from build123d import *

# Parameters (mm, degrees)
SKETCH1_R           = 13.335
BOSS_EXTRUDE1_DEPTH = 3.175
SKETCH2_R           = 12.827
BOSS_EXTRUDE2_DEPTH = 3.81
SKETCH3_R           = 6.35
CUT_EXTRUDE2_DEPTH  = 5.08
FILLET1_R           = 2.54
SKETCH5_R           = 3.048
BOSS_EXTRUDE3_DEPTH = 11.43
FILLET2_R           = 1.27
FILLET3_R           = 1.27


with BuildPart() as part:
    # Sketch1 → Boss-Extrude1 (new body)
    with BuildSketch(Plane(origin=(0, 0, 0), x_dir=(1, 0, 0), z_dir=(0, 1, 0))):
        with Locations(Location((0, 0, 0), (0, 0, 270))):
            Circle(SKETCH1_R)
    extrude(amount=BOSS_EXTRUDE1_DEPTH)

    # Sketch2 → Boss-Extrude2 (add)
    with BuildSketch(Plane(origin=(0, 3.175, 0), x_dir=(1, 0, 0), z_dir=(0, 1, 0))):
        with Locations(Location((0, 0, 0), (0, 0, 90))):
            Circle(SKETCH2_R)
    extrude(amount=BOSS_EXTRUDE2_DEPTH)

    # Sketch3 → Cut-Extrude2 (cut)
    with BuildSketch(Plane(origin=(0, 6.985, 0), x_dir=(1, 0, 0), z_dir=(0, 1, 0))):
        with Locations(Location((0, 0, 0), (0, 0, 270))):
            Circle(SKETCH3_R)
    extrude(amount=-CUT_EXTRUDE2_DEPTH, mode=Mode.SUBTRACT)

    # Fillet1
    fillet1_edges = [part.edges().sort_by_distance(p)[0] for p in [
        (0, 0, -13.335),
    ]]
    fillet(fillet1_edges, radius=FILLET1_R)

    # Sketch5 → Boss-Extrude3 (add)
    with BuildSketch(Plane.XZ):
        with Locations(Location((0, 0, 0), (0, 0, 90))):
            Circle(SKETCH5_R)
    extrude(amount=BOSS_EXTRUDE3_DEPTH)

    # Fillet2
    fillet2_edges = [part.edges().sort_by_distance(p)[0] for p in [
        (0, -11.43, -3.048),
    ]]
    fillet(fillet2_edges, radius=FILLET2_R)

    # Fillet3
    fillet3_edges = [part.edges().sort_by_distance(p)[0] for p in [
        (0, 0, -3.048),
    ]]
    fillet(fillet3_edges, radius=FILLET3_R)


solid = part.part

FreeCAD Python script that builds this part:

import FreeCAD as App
import Part
import Sketcher

V = App.Vector
Q = App.Units.Quantity


def edges_at(feature, points):
    """Names of the edges that pass closest to the given points."""
    edges = feature.Shape.Edges
    near = lambda p: min(range(len(edges)), key=lambda i: edges[i].distToShape(Part.Vertex(*p))[0])
    return sorted({f"Edge{near(p) + 1}" for p in points})

doc = App.newDocument("Part")
body = doc.addObject("PartDesign::Body", "Body")

# Sketch on XZ plane
sketch1 = doc.addObject("Sketcher::SketchObject", "Sketch")
body.addObject(sketch1)
sketch1.AttachmentSupport = (doc.XZ_Plane, [""])
sketch1.MapMode = "FlatFace"
sketch1.addGeometry(Part.Circle(V(0, 0, 0), V(0, 0, 1), 13.335), False)
sketch1.addConstraint([
    Sketcher.Constraint("Coincident", 0, 3, -1, 1),
    Sketcher.Constraint("Diameter", 0, Q("1.05 in")),
])
pad1 = doc.addObject("PartDesign::Pad", "Pad")
body.addObject(pad1)
pad1.Profile = sketch1
pad1.Length = Q("0.125 in")
pad1.Reversed = True

# Sketch on XZ plane
sketch2 = doc.addObject("Sketcher::SketchObject", "Sketch001")
body.addObject(sketch2)
sketch2.AttachmentSupport = (doc.XZ_Plane, [""])
sketch2.MapMode = "FlatFace"
sketch2.AttachmentOffset = App.Placement(V(0, 0, -0.125 * 25.4), App.Rotation())
sketch2.addGeometry(Part.Circle(V(0, 0, 0), V(0, 0, 1), 12.827), False)
sketch2.addConstraint([
    Sketcher.Constraint("Coincident", 0, 3, -1, 1),
    Sketcher.Constraint("Diameter", 0, Q("1.01 in")),
])
pad2 = doc.addObject("PartDesign::Pad", "Pad001")
body.addObject(pad2)
pad2.Profile = sketch2
pad2.Length = Q("0.15 in")
pad2.Reversed = True

# Sketch on XZ plane
sketch3 = doc.addObject("Sketcher::SketchObject", "Sketch002")
body.addObject(sketch3)
sketch3.AttachmentSupport = (doc.XZ_Plane, [""])
sketch3.MapMode = "FlatFace"
sketch3.AttachmentOffset = App.Placement(V(0, 0, -0.275 * 25.4), App.Rotation())
sketch3.addGeometry(Part.Circle(V(0, 0, 0), V(0, 0, 1), 6.35), False)
sketch3.addConstraint([
    Sketcher.Constraint("Coincident", 0, 3, -1, 1),
    Sketcher.Constraint("Diameter", 0, Q("0.5 in")),
])
pocket1 = doc.addObject("PartDesign::Pocket", "Pocket")
body.addObject(pocket1)
pocket1.Profile = sketch3
pocket1.Length = Q("0.2 in")
pocket1.Reversed = True
doc.recompute()

fillet = doc.addObject("PartDesign::Fillet", "Fillet")
body.addObject(fillet)
fillet.Base = (pocket1, edges_at(pocket1, [(0, 0, -13.335)]))
fillet.Radius = Q("0.1 in")

# Sketch on XZ plane
sketch4 = doc.addObject("Sketcher::SketchObject", "Sketch003")
body.addObject(sketch4)
sketch4.AttachmentSupport = (doc.XZ_Plane, [""])
sketch4.MapMode = "FlatFace"
sketch4.addGeometry(Part.Circle(V(0, 0, 0), V(0, 0, 1), 3.048), False)
sketch4.addConstraint([
    Sketcher.Constraint("Coincident", 0, 3, -1, 1),
    Sketcher.Constraint("Diameter", 0, Q("0.24 in")),
])
pad3 = doc.addObject("PartDesign::Pad", "Pad002")
body.addObject(pad3)
pad3.Profile = sketch4
pad3.Length = Q("0.45 in")
doc.recompute()

fillet2 = doc.addObject("PartDesign::Fillet", "Fillet001")
body.addObject(fillet2)
fillet2.Base = (pad3, edges_at(pad3, [(0, -11.43, -3.048)]))
fillet2.Radius = Q("0.05 in")
doc.recompute()

fillet3 = doc.addObject("PartDesign::Fillet", "Fillet002")
body.addObject(fillet3)
fillet3.Base = (fillet2, edges_at(fillet2, [(0, 0, -3.048)]))
fillet3.Radius = Q("0.05 in")

doc.recompute()
